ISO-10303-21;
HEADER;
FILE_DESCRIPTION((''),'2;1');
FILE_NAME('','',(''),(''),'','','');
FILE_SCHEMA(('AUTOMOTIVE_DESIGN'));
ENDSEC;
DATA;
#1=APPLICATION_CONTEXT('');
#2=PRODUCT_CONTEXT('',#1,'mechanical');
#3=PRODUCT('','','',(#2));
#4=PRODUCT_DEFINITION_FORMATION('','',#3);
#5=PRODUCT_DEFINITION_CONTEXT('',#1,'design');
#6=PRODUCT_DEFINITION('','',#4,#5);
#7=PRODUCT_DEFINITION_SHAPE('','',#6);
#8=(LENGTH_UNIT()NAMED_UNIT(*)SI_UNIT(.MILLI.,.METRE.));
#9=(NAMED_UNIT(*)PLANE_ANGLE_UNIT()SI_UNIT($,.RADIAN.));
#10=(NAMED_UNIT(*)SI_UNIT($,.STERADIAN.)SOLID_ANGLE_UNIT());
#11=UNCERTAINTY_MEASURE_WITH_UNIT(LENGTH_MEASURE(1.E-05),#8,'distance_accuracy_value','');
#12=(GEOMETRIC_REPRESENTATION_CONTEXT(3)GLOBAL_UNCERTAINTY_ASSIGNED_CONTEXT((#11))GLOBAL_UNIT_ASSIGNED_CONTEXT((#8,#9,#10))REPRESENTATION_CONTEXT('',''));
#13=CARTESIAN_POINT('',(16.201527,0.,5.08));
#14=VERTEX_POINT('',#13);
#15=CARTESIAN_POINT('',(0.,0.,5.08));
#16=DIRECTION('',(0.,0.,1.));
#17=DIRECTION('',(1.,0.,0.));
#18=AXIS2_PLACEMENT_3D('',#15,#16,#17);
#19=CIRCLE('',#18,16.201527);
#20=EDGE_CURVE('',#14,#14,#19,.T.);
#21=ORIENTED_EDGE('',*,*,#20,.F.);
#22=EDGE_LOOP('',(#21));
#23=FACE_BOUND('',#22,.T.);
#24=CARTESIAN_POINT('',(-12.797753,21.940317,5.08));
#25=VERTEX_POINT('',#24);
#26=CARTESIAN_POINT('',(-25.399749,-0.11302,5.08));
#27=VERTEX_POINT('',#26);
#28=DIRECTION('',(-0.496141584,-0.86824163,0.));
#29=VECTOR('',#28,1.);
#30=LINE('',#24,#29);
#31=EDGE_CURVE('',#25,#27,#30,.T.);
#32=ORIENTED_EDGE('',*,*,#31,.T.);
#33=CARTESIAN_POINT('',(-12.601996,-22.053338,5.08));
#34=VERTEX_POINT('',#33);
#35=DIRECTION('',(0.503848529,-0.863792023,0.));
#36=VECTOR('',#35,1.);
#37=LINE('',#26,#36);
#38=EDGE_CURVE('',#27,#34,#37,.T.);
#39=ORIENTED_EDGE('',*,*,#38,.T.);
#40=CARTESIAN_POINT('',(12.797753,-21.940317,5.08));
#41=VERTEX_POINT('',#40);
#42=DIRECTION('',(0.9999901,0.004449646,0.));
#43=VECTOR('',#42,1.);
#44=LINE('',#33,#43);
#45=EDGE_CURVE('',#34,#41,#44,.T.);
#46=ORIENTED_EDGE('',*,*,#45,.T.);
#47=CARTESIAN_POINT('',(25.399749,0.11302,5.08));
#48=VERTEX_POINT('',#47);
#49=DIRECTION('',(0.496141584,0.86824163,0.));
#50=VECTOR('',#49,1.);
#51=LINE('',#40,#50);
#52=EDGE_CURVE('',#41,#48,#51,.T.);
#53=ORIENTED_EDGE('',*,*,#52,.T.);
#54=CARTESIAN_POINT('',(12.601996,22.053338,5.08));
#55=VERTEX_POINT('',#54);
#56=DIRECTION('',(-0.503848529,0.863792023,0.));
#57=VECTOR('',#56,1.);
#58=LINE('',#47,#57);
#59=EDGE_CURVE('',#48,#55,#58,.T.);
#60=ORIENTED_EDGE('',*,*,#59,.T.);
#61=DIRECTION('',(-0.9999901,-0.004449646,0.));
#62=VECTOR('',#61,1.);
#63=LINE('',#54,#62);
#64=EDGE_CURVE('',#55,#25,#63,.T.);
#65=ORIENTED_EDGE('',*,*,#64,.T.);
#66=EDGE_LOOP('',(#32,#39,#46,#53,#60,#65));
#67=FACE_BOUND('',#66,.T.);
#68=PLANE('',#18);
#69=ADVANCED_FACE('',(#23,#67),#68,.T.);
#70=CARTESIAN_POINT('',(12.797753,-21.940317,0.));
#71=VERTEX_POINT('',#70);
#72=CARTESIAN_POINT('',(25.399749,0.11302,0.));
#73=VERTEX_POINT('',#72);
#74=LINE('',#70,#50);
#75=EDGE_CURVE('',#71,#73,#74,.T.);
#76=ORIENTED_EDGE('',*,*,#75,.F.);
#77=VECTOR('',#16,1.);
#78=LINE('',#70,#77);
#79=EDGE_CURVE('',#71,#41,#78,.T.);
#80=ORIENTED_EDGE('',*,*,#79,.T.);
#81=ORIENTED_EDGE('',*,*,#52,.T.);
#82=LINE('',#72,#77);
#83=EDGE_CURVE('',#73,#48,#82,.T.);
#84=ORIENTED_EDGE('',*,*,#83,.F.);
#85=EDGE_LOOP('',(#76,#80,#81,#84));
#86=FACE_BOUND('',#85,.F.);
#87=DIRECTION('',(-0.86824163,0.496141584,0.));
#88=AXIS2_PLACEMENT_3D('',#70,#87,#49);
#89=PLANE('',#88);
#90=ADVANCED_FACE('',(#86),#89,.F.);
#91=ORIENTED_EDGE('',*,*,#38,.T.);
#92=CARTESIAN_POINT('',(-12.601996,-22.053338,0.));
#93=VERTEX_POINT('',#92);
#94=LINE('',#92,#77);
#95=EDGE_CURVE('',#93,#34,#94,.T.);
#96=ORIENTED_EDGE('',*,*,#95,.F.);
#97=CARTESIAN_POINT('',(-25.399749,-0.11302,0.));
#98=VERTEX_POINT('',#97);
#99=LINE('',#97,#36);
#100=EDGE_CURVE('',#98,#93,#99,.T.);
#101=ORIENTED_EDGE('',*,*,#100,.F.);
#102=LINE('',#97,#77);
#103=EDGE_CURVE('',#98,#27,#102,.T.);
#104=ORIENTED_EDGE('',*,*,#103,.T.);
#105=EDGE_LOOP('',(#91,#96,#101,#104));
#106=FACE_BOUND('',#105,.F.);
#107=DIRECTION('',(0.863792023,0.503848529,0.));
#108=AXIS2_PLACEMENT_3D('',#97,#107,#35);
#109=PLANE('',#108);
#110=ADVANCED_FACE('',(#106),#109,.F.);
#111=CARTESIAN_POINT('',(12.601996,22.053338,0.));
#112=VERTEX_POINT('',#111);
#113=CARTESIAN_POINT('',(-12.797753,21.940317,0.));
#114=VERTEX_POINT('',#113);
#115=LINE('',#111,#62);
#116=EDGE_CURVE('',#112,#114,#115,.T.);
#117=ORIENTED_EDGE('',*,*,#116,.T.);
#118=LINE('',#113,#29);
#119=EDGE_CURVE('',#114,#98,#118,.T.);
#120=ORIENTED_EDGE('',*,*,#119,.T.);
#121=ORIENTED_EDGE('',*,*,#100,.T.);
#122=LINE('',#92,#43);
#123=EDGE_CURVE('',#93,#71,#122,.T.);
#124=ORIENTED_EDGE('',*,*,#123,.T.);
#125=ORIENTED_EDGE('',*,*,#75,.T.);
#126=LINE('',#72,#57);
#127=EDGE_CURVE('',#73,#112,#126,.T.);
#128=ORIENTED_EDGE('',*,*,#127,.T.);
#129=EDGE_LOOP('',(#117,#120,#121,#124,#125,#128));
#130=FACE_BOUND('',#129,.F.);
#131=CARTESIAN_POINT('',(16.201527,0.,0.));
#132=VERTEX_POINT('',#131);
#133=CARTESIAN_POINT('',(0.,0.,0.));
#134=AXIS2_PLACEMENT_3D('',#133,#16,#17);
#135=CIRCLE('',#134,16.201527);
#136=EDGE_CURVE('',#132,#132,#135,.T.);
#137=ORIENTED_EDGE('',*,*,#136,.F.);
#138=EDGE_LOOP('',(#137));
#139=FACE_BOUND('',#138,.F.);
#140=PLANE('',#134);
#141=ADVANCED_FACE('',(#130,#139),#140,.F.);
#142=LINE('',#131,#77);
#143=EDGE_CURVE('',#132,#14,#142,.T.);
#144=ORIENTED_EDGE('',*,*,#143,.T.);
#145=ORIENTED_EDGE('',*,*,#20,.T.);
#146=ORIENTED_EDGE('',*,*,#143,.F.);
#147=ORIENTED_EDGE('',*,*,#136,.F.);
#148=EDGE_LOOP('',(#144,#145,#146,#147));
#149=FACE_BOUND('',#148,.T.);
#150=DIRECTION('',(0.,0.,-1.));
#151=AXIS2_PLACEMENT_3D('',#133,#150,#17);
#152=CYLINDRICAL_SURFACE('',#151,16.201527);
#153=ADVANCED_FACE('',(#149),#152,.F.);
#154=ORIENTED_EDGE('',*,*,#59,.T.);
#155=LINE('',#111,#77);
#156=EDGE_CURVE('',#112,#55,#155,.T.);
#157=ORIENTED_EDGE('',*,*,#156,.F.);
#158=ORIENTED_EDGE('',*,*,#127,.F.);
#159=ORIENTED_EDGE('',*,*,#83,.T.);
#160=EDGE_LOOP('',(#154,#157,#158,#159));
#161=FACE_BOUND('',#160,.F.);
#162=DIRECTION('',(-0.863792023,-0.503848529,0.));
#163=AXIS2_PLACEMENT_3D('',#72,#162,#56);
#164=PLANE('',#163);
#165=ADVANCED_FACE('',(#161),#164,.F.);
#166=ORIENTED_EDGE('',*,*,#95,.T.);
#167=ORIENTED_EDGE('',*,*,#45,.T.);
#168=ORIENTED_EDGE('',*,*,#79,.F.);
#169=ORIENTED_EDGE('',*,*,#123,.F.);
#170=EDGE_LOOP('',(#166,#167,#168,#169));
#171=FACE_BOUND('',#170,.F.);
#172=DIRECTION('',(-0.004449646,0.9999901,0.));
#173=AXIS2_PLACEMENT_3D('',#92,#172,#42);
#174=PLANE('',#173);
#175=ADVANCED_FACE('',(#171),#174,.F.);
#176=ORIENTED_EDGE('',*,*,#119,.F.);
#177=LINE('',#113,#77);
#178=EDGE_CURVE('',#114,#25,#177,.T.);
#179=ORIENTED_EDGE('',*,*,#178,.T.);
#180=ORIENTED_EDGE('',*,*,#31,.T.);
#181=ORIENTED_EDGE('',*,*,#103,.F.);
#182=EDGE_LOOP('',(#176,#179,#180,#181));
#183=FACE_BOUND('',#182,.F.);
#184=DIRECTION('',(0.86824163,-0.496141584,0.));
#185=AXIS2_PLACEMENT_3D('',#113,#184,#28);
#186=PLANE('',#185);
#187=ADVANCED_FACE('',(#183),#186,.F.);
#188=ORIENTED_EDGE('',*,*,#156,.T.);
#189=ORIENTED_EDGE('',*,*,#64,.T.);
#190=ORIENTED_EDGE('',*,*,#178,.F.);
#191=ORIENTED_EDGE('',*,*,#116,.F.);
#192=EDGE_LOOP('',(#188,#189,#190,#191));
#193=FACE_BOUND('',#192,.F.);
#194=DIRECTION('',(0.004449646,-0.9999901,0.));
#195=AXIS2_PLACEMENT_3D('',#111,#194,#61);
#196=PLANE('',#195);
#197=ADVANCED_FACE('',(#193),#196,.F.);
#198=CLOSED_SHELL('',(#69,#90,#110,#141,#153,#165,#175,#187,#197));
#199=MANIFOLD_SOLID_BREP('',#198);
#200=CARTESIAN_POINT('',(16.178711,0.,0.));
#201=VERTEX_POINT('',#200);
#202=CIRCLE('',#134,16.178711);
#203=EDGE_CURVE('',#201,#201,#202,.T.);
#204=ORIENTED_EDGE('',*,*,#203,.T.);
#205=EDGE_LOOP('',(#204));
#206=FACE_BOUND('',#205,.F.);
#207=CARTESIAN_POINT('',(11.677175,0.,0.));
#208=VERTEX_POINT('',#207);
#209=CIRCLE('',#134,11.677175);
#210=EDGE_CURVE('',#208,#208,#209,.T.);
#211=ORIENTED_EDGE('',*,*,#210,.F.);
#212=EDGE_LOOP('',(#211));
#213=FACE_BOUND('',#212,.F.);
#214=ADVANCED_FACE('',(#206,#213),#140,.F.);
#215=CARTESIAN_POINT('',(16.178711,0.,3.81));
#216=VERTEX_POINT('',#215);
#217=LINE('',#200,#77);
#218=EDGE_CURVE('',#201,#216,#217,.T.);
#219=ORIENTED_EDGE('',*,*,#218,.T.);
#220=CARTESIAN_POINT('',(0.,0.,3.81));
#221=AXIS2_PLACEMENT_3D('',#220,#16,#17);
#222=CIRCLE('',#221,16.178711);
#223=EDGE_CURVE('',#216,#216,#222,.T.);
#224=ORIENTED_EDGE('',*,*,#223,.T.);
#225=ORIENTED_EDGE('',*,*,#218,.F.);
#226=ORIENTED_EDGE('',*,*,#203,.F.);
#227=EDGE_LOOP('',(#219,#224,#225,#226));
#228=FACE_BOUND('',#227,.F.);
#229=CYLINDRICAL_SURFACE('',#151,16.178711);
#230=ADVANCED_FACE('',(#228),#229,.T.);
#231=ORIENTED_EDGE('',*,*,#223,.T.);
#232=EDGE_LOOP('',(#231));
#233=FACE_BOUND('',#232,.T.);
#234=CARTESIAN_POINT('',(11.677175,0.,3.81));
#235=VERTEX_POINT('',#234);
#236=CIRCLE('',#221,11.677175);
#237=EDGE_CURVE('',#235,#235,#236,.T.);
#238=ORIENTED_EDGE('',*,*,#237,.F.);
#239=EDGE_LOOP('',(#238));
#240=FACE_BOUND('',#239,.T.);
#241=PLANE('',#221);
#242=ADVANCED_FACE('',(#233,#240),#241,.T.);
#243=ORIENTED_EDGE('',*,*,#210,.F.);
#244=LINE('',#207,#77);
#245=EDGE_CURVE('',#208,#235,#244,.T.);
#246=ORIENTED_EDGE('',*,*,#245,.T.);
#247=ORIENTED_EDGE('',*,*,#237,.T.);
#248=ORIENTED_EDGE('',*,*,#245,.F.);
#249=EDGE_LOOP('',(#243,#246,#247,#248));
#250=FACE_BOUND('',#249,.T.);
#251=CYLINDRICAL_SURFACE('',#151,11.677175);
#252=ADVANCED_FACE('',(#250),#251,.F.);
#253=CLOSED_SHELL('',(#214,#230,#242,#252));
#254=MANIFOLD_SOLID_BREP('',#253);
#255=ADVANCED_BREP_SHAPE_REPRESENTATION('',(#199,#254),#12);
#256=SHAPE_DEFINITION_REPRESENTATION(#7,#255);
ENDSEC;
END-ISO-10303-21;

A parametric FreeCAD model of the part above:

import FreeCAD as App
import Part
import Sketcher
Q = App.Units.Quantity

doc = App.newDocument("Part")
body = doc.addObject("PartDesign::Body", "Body")

sketch1 = body.newObject("Sketcher::SketchObject", "Sketch")
sketch1.AttachmentSupport = (doc.getObject("XY_Plane"), [""])
sketch1.MapMode = "FlatFace"
sketch1.addGeometry(Part.LineSegment(App.Vector(13, 22, 0), App.Vector(-13, 22, 0)), False)
sketch1.addGeometry(Part.LineSegment(App.Vector(-13, 22, 0), App.Vector(-25, 0, 0)), False)
sketch1.addGeometry(Part.LineSegment(App.Vector(-25, 0, 0), App.Vector(-13, -22, 0)), False)
sketch1.addGeometry(Part.LineSegment(App.Vector(-13, -22, 0), App.Vector(13, -22, 0)), False)
sketch1.addGeometry(Part.LineSegment(App.Vector(13, -22, 0), App.Vector(25, 0, 0)), False)
sketch1.addGeometry(Part.LineSegment(App.Vector(25, 0, 0), App.Vector(13, 22, 0)), False)
sketch1.addGeometry(Part.Circle(App.Vector(0, 0, 0), App.Vector(0, 0, 1), 16), False)
sketch1.addConstraint(Sketcher.Constraint("Coincident", 0, 2, 1, 1))
sketch1.addConstraint(Sketcher.Constraint("Coincident", 1, 2, 2, 1))
sketch1.addConstraint(Sketcher.Constraint("Coincident", 2, 2, 3, 1))
sketch1.addConstraint(Sketcher.Constraint("Coincident", 3, 2, 4, 1))
sketch1.addConstraint(Sketcher.Constraint("Coincident", 4, 2, 5, 1))
sketch1.addConstraint(Sketcher.Constraint("Coincident", 5, 2, 0, 1))
sketch1.addConstraint(Sketcher.Constraint("Coincident", 6, 3, -1, 1))
sketch1.addConstraint(Sketcher.Constraint("Symmetric", 0, 2, 3, 2, -1, 1))
sketch1.addConstraint(Sketcher.Constraint("Symmetric", 1, 2, 4, 2, -1, 1))
sketch1.addConstraint(Sketcher.Constraint("Symmetric", 2, 2, 5, 2, -1, 1))
sketch1.addConstraint(Sketcher.Constraint("Equal", 0, 1))
sketch1.addConstraint(Sketcher.Constraint("Equal", 1, 2))
sketch1.addConstraint(Sketcher.Constraint("Distance", 0, Q("1 in")))
sketch1.addConstraint(Sketcher.Constraint("Diameter", 6, 32.403054))
sketch1.addConstraint(Sketcher.Constraint("DistanceX", 1, 2, -1, 1, 25.399749))
sketch1.addConstraint(Sketcher.Constraint("DistanceY", 1, 2, -1, 1, 0.11302))
sketch1.addConstraint(Sketcher.Constraint("DistanceY", 2, 2, -1, 1, 22.053338))
pad1 = body.newObject("PartDesign::Pad", "Pad")
pad1.Profile = sketch1
pad1.Length = Q("0.2 in")
body2 = doc.addObject("PartDesign::Body", "Body001")

sketch2 = body2.newObject("Sketcher::SketchObject", "Sketch001")
sketch2.AttachmentSupport = (doc.getObject("XY_Plane001"), [""])
sketch2.MapMode = "FlatFace"
sketch2.addGeometry(Part.Circle(App.Vector(0, 0, 0), App.Vector(0, 0, 1), 16), False)
sketch2.addGeometry(Part.Circle(App.Vector(0, 0, 0), App.Vector(0, 0, 1), 12), False)
sketch2.addConstraint(Sketcher.Constraint("Coincident", 0, 3, -1, 1))
sketch2.addConstraint(Sketcher.Constraint("Coincident", 1, 3, -1, 1))
sketch2.addConstraint(Sketcher.Constraint("Diameter", 1, 23.35435))
sketch2.addConstraint(Sketcher.Constraint("Diameter", 0, 32.357422))
pad2 = body2.newObject("PartDesign::Pad", "Pad001")
pad2.Profile = sketch2
pad2.Length = Q("0.15 in")

doc.recompute()
